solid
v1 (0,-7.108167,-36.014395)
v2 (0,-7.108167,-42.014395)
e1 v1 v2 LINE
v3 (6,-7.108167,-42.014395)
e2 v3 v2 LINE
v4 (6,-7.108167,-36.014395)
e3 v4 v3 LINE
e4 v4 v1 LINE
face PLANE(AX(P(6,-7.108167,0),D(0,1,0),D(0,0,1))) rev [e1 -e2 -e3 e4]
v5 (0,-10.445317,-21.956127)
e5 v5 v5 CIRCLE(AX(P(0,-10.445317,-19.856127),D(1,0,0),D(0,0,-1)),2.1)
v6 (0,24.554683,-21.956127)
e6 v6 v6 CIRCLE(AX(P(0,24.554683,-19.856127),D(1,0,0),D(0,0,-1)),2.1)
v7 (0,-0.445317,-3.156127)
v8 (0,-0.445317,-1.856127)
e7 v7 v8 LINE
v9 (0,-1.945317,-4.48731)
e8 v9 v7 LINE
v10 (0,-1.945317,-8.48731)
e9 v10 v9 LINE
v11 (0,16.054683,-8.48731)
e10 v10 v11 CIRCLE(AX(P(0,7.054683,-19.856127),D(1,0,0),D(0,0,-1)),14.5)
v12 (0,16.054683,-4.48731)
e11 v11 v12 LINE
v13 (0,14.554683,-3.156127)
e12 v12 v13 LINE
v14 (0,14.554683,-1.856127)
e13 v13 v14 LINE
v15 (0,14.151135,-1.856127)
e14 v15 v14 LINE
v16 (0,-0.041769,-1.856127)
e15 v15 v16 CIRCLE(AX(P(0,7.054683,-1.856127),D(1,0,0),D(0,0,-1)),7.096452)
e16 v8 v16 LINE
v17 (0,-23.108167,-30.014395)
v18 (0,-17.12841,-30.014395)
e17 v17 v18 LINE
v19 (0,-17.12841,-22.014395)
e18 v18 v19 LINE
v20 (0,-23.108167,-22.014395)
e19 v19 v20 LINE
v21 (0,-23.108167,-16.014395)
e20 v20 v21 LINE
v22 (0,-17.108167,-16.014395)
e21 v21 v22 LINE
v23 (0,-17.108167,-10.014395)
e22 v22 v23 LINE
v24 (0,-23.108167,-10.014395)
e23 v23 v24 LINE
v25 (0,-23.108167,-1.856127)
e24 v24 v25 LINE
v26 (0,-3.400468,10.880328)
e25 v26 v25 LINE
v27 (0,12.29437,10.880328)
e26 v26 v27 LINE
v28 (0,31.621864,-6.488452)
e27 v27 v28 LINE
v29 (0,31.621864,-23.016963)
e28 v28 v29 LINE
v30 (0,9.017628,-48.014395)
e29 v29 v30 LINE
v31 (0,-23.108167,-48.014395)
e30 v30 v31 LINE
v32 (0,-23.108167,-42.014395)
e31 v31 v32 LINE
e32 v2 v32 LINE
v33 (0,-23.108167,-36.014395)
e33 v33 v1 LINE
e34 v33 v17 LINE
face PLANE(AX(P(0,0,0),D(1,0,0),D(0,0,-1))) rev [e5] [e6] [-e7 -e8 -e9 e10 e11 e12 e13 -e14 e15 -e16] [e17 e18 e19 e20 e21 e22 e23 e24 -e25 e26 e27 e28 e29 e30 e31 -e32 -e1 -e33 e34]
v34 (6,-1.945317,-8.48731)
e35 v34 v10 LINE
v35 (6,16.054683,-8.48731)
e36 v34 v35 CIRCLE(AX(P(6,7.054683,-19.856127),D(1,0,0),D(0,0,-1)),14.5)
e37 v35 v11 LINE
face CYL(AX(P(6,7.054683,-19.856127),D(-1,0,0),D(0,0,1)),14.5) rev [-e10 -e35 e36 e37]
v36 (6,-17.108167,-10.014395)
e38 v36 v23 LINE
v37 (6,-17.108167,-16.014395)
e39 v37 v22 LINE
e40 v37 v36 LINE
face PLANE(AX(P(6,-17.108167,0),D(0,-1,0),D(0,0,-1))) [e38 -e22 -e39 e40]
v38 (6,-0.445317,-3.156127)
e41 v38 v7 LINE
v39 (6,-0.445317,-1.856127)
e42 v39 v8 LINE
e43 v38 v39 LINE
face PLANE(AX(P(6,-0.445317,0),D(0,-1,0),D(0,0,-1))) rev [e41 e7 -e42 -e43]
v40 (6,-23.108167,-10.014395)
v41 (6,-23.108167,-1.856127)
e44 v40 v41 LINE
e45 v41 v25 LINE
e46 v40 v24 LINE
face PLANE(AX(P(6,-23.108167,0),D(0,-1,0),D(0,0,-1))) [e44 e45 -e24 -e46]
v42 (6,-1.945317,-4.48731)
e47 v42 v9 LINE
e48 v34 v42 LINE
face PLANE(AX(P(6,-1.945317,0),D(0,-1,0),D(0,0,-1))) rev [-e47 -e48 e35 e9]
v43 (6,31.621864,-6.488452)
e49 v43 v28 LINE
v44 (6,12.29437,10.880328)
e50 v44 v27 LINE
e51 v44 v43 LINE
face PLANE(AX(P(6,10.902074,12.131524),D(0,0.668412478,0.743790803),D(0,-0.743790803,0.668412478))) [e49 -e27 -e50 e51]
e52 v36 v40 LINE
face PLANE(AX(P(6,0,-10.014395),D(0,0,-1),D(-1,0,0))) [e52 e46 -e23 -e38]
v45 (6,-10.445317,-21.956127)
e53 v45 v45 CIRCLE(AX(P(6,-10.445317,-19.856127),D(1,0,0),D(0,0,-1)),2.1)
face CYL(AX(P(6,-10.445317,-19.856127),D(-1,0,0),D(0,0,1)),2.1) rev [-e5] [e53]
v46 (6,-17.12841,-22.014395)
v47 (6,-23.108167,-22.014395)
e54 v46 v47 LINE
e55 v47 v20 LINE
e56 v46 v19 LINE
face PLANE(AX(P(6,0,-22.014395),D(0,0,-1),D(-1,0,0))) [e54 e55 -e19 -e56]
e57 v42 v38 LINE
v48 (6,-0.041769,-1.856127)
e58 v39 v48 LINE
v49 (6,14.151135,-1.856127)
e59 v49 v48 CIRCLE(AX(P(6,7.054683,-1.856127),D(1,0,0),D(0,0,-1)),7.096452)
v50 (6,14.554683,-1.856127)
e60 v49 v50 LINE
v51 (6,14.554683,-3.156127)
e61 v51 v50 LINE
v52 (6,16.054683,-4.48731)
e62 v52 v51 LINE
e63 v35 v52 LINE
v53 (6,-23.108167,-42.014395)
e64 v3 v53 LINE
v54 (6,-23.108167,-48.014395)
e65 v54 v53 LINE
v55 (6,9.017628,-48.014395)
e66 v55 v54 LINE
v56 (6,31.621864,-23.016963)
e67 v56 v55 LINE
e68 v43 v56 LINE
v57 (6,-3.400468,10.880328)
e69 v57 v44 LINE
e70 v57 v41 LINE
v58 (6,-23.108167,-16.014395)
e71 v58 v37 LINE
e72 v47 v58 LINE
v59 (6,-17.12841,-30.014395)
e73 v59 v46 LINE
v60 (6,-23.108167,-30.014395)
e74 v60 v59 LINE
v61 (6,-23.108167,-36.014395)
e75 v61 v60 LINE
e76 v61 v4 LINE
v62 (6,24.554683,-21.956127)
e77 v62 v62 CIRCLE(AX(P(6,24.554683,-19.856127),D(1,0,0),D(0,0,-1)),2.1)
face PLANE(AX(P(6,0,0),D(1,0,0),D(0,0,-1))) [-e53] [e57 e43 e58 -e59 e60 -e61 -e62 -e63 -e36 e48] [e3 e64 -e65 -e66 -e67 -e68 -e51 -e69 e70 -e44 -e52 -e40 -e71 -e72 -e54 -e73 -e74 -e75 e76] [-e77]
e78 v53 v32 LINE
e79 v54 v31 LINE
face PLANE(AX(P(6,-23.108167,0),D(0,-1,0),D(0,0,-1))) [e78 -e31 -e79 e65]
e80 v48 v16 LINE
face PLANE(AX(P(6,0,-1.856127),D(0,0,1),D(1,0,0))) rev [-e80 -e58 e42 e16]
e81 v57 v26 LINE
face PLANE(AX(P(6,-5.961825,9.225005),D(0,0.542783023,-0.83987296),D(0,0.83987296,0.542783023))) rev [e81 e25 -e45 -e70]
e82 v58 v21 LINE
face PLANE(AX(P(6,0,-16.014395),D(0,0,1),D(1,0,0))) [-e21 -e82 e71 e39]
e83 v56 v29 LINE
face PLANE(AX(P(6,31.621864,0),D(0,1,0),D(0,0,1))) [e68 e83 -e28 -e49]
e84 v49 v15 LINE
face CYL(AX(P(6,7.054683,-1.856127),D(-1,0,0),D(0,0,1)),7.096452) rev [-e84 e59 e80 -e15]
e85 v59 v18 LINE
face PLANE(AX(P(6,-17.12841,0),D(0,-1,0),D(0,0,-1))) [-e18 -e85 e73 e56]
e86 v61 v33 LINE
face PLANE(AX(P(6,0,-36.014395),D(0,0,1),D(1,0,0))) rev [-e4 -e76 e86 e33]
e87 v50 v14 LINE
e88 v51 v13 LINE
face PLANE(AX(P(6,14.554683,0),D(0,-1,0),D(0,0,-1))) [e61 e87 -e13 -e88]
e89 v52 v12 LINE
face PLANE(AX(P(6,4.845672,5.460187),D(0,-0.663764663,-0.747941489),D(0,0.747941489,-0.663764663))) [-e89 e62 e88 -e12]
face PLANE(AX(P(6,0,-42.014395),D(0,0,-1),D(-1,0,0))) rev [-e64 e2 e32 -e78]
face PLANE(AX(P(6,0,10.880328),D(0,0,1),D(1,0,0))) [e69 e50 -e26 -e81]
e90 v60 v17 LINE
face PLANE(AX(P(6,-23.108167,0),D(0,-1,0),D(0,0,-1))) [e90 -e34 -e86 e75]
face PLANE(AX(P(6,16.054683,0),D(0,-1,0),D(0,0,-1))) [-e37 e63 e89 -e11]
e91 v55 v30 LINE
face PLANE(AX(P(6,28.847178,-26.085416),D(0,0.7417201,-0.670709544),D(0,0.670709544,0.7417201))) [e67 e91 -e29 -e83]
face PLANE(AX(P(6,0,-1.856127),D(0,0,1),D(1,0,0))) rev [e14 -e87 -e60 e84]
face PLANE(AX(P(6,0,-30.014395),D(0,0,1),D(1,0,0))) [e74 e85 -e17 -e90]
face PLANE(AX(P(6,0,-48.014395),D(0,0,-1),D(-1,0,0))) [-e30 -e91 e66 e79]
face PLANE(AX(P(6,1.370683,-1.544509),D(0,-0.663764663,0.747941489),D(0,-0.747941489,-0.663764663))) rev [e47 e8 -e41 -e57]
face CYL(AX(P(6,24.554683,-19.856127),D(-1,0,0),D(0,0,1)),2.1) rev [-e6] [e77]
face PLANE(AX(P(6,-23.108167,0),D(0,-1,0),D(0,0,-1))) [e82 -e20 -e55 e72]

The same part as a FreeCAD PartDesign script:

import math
import FreeCAD as App
import Part
import Sketcher
from FreeCAD import Vector
Q = App.Units.Quantity


def add_polygon(sketch, points):
    """Adds a closed chain of lines whose ends are joined by coincident constraints."""
    first, n = sketch.GeometryCount, len(points)
    for a, b in zip(points, points[1:] + points[:1]):
        sketch.addGeometry(Part.LineSegment(App.Vector(*a, 0), App.Vector(*b, 0)), False)
    for i in range(n):
        sketch.addConstraint(Sketcher.Constraint("Coincident", first + i, 2, first + (i + 1) % n, 1))

doc = App.newDocument("Part")
body = doc.addObject("PartDesign::Body", "Body")

sketch1 = doc.addObject("Sketcher::SketchObject", "Sketch")
body.addObject(sketch1)
sketch1.AttachmentSupport = (doc.YZ_Plane, [""])
sketch1.MapMode = "FlatFace"
add_polygon(sketch1, [(-23.108167, -1.856127), (-23.108167, -10.014395), (-17.108167, -10.014395), (-17.108167, -16.014395), (-23.108167, -16.014395), (-23.108167, -22.014395), (-17.12841, -22.014395), (-17.12841, -30.014395), (-23.108167, -30.014395), (-23.108167, -36.014395), (-7.108167, -36.014395), (-7.108167, -42.014395), (-23.108167, -42.014395), (-23.108167, -48.014395), (9.017628, -48.014395), (31.621864, -23.016963), (31.621864, -6.488452), (12.29437, 10.880328), (-3.400468, 10.880328)])
sketch1.addGeometry(Part.Circle(Vector(-10.445317, -19.856127, 0), Vector(0, 0, 1), 2.1), False)
sketch1.addGeometry(Part.LineSegment(Vector(-1.945317, -4.48731, 0), Vector(-0.445317, -3.156127, 0)), False)
sketch1.addGeometry(Part.LineSegment(Vector(-0.445317, -3.156127, 0), Vector(-0.445317, -1.856127, 0)), False)
sketch1.addGeometry(Part.LineSegment(Vector(-0.445317, -1.856127, 0), Vector(-0.041769, -1.856127, 0)), False)
sketch1.addGeometry(Part.ArcOfCircle(Part.Circle(Vector(7.054683, -1.856127, 0), Vector(0, 0, 1), 7.096452), math.radians(0), math.radians(180)), False)
sketch1.addGeometry(Part.LineSegment(Vector(14.151135, -1.856127, 0), Vector(14.554683, -1.856127, 0)), False)
sketch1.addGeometry(Part.LineSegment(Vector(14.554683, -1.856127, 0), Vector(14.554683, -3.156127, 0)), False)
sketch1.addGeometry(Part.LineSegment(Vector(14.554683, -3.156127, 0), Vector(16.054683, -4.48731, 0)), False)
sketch1.addGeometry(Part.LineSegment(Vector(16.054683, -4.48731, 0), Vector(16.054683, -8.48731, 0)), False)
sketch1.addGeometry(Part.ArcOfCircle(Part.Circle(Vector(7.054683, -19.856127, 0), Vector(0, 0, 1), 14.5), math.radians(128.366514), math.radians(411.633486)), False)
sketch1.addGeometry(Part.LineSegment(Vector(-1.945317, -8.48731, 0), Vector(-1.945317, -4.48731, 0)), False)
sketch1.addGeometry(Part.Circle(Vector(24.554683, -19.856127, 0), Vector(0, 0, 1), 2.1), False)
sketch1.addConstraint(Sketcher.Constraint("Coincident", 20, 2, 21, 1))
sketch1.addConstraint(Sketcher.Constraint("Coincident", 21, 2, 22, 1))
sketch1.addConstraint(Sketcher.Constraint("Coincident", 22, 2, 23, 2))
sketch1.addConstraint(Sketcher.Constraint("Coincident", 23, 1, 24, 1))
sketch1.addConstraint(Sketcher.Constraint("Coincident", 24, 2, 25, 1))
sketch1.addConstraint(Sketcher.Constraint("Coincident", 25, 2, 26, 1))
sketch1.addConstraint(Sketcher.Constraint("Coincident", 26, 2, 27, 1))
sketch1.addConstraint(Sketcher.Constraint("Coincident", 27, 2, 28, 2))
sketch1.addConstraint(Sketcher.Constraint("Coincident", 28, 1, 29, 1))
sketch1.addConstraint(Sketcher.Constraint("Coincident", 29, 2, 20, 1))
sketch1.addConstraint(Sketcher.Constraint("Vertical", 0))
sketch1.addConstraint(Sketcher.Constraint("Horizontal", 1))
sketch1.addConstraint(Sketcher.Constraint("Vertical", 2))
sketch1.addConstraint(Sketcher.Constraint("Horizontal", 3))
sketch1.addConstraint(Sketcher.Constraint("Vertical", 4))
sketch1.addConstraint(Sketcher.Constraint("Horizontal", 5))
sketch1.addConstraint(Sketcher.Constraint("Vertical", 6))
sketch1.addConstraint(Sketcher.Constraint("Horizontal", 7))
sketch1.addConstraint(Sketcher.Constraint("Vertical", 8))
sketch1.addConstraint(Sketcher.Constraint("Horizontal", 9))
sketch1.addConstraint(Sketcher.Constraint("Vertical", 10))
sketch1.addConstraint(Sketcher.Constraint("Horizontal", 11))
sketch1.addConstraint(Sketcher.Constraint("Vertical", 12))
sketch1.addConstraint(Sketcher.Constraint("Horizontal", 13))
sketch1.addConstraint(Sketcher.Constraint("Vertical", 15))
sketch1.addConstraint(Sketcher.Constraint("Horizontal", 17))
sketch1.addConstraint(Sketcher.Constraint("Vertical", 21))
sketch1.addConstraint(Sketcher.Constraint("Horizontal", 22))
sketch1.addConstraint(Sketcher.Constraint("Horizontal", 24))
sketch1.addConstraint(Sketcher.Constraint("Vertical", 25))
sketch1.addConstraint(Sketcher.Constraint("Vertical", 27))
sketch1.addConstraint(Sketcher.Constraint("Vertical", 29))
sketch1.addConstraint(Sketcher.Constraint("Equal", 19, 30))
sketch1.addConstraint(Sketcher.Constraint("Horizontal", 19, 3, 28, 3))
sketch1.addConstraint(Sketcher.Constraint("Horizontal", 28, 3, 30, 3))
sketch1.addConstraint(Sketcher.Constraint("Horizontal", 23, 3, 18, 2))
sketch1.addConstraint(Sketcher.Constraint("Horizontal", 18, 2, 21, 2))
sketch1.addConstraint(Sketcher.Constraint("Horizontal", 22, 2, 23, 1))
sketch1.addConstraint(Sketcher.Constraint("Horizontal", 20, 2, 25, 2))
sketch1.addConstraint(Sketcher.Constraint("Horizontal", 27, 2, 28, 1))
sketch1.addConstraint(Sketcher.Constraint("Horizontal", 26, 2, 29, 2))
sketch1.addConstraint(Sketcher.Constraint("Vertical", 23, 3, 28, 3))
sketch1.addConstraint(Sketcher.Constraint("Vertical", 0, 2, 3, 2))
sketch1.addConstraint(Sketcher.Constraint("Vertical", 4, 2, 7, 2))
sketch1.addConstraint(Sketcher.Constraint("Vertical", 8, 2, 11, 2))
sketch1.addConstraint(Sketcher.Constraint("Equal", 22, 24))
sketch1.addConstraint(Sketcher.Constraint("Equal", 3, 2))
sketch1.addConstraint(Sketcher.Constraint("Equal", 2, 4))
sketch1.addConstraint(Sketcher.Constraint("Equal", 4, 8))
sketch1.addConstraint(Sketcher.Constraint("Equal", 8, 10))
sketch1.addConstraint(Sketcher.Constraint("Equal", 10, 12))
sketch1.addConstraint(Sketcher.Constraint("Diameter", 19, Q("4.2 mm")))
sketch1.addConstraint(Sketcher.Constraint("Radius", 28, Q("14.5 mm")))
sketch1.addConstraint(Sketcher.Constraint("DistanceX", 1, 1, 1, 2, Q("6 mm")))
sketch1.addConstraint(Sketcher.Constraint("DistanceX", 9, 1, 9, 2, Q("16 mm")))
sketch1.addConstraint(Sketcher.Constraint("DistanceY", 6, 2, 6, 1, Q("8 mm")))
sketch1.addConstraint(Sketcher.Constraint("DistanceY", 27, 2, 27, 1, Q("4 mm")))
sketch1.addConstraint(Sketcher.Constraint("DistanceY", 21, 1, 21, 2, Q("1.3 mm")))
sketch1.addConstraint(Sketcher.Constraint("DistanceY", 19, 3, 23, 3, Q("18 mm")))
sketch1.addConstraint(Sketcher.Constraint("DistanceX", 19, 3, 30, 3, Q("35 mm")))
sketch1.addConstraint(Sketcher.Constraint("DistanceX", 21, 2, 24, 2, Q("15 mm")))
sketch1.addConstraint(Sketcher.Constraint("DistanceX", 23, 3, 26, 2, Q("9 mm")))
sketch1.addConstraint(Sketcher.Constraint("DistanceX", 19, 3, 23, 3, Q("17.5 mm")))
sketch1.addConstraint(Sketcher.Constraint("Radius", 23, Q("7.096452 mm")))
sketch1.addConstraint(Sketcher.Constraint("DistanceY", 15, 1, 15, 2, Q("16.528511 mm")))
sketch1.addConstraint(Sketcher.Constraint("DistanceX", 1, 2, 17, 2, Q("13.707699 mm")))
sketch1.addConstraint(Sketcher.Constraint("DistanceX", 17, 2, 22, 2, Q("3.358699 mm")))
sketch1.addConstraint(Sketcher.Constraint("DistanceX", 5, 1, 5, 2, Q("5.979757 mm")))
sketch1.addConstraint(Sketcher.Constraint("DistanceX", 13, 1, 13, 2, Q("32.125795 mm")))
sketch1.addConstraint(Sketcher.Constraint("DistanceX", 17, 2, 17, 1, Q("15.694838 mm")))
sketch1.addConstraint(Sketcher.Constraint("DistanceY", 0, 2, 0, 1, Q("8.158268 mm")))
sketch1.addConstraint(Sketcher.Constraint("DistanceX", 5, 2, -1, 1, Q("17.12841 mm")))
sketch1.addConstraint(Sketcher.Constraint("DistanceY", 15, 2, -1, 1, Q("6.488452 mm")))
sketch1.addConstraint(Sketcher.Constraint("DistanceY", -1, 1, 16, 2, Q("10.880328 mm")))
sketch1.addConstraint(Sketcher.Constraint("DistanceY", 26, 2, -1, 1, Q("4.48731 mm")))
sketch1.addConstraint(Sketcher.Constraint("DistanceX", 30, 3, 14, 2, Q("7.067181 mm")))
pad1 = doc.addObject("PartDesign::Pad", "Pad")
body.addObject(pad1)
pad1.Profile = sketch1
pad1.Length = 6

doc.recompute()
